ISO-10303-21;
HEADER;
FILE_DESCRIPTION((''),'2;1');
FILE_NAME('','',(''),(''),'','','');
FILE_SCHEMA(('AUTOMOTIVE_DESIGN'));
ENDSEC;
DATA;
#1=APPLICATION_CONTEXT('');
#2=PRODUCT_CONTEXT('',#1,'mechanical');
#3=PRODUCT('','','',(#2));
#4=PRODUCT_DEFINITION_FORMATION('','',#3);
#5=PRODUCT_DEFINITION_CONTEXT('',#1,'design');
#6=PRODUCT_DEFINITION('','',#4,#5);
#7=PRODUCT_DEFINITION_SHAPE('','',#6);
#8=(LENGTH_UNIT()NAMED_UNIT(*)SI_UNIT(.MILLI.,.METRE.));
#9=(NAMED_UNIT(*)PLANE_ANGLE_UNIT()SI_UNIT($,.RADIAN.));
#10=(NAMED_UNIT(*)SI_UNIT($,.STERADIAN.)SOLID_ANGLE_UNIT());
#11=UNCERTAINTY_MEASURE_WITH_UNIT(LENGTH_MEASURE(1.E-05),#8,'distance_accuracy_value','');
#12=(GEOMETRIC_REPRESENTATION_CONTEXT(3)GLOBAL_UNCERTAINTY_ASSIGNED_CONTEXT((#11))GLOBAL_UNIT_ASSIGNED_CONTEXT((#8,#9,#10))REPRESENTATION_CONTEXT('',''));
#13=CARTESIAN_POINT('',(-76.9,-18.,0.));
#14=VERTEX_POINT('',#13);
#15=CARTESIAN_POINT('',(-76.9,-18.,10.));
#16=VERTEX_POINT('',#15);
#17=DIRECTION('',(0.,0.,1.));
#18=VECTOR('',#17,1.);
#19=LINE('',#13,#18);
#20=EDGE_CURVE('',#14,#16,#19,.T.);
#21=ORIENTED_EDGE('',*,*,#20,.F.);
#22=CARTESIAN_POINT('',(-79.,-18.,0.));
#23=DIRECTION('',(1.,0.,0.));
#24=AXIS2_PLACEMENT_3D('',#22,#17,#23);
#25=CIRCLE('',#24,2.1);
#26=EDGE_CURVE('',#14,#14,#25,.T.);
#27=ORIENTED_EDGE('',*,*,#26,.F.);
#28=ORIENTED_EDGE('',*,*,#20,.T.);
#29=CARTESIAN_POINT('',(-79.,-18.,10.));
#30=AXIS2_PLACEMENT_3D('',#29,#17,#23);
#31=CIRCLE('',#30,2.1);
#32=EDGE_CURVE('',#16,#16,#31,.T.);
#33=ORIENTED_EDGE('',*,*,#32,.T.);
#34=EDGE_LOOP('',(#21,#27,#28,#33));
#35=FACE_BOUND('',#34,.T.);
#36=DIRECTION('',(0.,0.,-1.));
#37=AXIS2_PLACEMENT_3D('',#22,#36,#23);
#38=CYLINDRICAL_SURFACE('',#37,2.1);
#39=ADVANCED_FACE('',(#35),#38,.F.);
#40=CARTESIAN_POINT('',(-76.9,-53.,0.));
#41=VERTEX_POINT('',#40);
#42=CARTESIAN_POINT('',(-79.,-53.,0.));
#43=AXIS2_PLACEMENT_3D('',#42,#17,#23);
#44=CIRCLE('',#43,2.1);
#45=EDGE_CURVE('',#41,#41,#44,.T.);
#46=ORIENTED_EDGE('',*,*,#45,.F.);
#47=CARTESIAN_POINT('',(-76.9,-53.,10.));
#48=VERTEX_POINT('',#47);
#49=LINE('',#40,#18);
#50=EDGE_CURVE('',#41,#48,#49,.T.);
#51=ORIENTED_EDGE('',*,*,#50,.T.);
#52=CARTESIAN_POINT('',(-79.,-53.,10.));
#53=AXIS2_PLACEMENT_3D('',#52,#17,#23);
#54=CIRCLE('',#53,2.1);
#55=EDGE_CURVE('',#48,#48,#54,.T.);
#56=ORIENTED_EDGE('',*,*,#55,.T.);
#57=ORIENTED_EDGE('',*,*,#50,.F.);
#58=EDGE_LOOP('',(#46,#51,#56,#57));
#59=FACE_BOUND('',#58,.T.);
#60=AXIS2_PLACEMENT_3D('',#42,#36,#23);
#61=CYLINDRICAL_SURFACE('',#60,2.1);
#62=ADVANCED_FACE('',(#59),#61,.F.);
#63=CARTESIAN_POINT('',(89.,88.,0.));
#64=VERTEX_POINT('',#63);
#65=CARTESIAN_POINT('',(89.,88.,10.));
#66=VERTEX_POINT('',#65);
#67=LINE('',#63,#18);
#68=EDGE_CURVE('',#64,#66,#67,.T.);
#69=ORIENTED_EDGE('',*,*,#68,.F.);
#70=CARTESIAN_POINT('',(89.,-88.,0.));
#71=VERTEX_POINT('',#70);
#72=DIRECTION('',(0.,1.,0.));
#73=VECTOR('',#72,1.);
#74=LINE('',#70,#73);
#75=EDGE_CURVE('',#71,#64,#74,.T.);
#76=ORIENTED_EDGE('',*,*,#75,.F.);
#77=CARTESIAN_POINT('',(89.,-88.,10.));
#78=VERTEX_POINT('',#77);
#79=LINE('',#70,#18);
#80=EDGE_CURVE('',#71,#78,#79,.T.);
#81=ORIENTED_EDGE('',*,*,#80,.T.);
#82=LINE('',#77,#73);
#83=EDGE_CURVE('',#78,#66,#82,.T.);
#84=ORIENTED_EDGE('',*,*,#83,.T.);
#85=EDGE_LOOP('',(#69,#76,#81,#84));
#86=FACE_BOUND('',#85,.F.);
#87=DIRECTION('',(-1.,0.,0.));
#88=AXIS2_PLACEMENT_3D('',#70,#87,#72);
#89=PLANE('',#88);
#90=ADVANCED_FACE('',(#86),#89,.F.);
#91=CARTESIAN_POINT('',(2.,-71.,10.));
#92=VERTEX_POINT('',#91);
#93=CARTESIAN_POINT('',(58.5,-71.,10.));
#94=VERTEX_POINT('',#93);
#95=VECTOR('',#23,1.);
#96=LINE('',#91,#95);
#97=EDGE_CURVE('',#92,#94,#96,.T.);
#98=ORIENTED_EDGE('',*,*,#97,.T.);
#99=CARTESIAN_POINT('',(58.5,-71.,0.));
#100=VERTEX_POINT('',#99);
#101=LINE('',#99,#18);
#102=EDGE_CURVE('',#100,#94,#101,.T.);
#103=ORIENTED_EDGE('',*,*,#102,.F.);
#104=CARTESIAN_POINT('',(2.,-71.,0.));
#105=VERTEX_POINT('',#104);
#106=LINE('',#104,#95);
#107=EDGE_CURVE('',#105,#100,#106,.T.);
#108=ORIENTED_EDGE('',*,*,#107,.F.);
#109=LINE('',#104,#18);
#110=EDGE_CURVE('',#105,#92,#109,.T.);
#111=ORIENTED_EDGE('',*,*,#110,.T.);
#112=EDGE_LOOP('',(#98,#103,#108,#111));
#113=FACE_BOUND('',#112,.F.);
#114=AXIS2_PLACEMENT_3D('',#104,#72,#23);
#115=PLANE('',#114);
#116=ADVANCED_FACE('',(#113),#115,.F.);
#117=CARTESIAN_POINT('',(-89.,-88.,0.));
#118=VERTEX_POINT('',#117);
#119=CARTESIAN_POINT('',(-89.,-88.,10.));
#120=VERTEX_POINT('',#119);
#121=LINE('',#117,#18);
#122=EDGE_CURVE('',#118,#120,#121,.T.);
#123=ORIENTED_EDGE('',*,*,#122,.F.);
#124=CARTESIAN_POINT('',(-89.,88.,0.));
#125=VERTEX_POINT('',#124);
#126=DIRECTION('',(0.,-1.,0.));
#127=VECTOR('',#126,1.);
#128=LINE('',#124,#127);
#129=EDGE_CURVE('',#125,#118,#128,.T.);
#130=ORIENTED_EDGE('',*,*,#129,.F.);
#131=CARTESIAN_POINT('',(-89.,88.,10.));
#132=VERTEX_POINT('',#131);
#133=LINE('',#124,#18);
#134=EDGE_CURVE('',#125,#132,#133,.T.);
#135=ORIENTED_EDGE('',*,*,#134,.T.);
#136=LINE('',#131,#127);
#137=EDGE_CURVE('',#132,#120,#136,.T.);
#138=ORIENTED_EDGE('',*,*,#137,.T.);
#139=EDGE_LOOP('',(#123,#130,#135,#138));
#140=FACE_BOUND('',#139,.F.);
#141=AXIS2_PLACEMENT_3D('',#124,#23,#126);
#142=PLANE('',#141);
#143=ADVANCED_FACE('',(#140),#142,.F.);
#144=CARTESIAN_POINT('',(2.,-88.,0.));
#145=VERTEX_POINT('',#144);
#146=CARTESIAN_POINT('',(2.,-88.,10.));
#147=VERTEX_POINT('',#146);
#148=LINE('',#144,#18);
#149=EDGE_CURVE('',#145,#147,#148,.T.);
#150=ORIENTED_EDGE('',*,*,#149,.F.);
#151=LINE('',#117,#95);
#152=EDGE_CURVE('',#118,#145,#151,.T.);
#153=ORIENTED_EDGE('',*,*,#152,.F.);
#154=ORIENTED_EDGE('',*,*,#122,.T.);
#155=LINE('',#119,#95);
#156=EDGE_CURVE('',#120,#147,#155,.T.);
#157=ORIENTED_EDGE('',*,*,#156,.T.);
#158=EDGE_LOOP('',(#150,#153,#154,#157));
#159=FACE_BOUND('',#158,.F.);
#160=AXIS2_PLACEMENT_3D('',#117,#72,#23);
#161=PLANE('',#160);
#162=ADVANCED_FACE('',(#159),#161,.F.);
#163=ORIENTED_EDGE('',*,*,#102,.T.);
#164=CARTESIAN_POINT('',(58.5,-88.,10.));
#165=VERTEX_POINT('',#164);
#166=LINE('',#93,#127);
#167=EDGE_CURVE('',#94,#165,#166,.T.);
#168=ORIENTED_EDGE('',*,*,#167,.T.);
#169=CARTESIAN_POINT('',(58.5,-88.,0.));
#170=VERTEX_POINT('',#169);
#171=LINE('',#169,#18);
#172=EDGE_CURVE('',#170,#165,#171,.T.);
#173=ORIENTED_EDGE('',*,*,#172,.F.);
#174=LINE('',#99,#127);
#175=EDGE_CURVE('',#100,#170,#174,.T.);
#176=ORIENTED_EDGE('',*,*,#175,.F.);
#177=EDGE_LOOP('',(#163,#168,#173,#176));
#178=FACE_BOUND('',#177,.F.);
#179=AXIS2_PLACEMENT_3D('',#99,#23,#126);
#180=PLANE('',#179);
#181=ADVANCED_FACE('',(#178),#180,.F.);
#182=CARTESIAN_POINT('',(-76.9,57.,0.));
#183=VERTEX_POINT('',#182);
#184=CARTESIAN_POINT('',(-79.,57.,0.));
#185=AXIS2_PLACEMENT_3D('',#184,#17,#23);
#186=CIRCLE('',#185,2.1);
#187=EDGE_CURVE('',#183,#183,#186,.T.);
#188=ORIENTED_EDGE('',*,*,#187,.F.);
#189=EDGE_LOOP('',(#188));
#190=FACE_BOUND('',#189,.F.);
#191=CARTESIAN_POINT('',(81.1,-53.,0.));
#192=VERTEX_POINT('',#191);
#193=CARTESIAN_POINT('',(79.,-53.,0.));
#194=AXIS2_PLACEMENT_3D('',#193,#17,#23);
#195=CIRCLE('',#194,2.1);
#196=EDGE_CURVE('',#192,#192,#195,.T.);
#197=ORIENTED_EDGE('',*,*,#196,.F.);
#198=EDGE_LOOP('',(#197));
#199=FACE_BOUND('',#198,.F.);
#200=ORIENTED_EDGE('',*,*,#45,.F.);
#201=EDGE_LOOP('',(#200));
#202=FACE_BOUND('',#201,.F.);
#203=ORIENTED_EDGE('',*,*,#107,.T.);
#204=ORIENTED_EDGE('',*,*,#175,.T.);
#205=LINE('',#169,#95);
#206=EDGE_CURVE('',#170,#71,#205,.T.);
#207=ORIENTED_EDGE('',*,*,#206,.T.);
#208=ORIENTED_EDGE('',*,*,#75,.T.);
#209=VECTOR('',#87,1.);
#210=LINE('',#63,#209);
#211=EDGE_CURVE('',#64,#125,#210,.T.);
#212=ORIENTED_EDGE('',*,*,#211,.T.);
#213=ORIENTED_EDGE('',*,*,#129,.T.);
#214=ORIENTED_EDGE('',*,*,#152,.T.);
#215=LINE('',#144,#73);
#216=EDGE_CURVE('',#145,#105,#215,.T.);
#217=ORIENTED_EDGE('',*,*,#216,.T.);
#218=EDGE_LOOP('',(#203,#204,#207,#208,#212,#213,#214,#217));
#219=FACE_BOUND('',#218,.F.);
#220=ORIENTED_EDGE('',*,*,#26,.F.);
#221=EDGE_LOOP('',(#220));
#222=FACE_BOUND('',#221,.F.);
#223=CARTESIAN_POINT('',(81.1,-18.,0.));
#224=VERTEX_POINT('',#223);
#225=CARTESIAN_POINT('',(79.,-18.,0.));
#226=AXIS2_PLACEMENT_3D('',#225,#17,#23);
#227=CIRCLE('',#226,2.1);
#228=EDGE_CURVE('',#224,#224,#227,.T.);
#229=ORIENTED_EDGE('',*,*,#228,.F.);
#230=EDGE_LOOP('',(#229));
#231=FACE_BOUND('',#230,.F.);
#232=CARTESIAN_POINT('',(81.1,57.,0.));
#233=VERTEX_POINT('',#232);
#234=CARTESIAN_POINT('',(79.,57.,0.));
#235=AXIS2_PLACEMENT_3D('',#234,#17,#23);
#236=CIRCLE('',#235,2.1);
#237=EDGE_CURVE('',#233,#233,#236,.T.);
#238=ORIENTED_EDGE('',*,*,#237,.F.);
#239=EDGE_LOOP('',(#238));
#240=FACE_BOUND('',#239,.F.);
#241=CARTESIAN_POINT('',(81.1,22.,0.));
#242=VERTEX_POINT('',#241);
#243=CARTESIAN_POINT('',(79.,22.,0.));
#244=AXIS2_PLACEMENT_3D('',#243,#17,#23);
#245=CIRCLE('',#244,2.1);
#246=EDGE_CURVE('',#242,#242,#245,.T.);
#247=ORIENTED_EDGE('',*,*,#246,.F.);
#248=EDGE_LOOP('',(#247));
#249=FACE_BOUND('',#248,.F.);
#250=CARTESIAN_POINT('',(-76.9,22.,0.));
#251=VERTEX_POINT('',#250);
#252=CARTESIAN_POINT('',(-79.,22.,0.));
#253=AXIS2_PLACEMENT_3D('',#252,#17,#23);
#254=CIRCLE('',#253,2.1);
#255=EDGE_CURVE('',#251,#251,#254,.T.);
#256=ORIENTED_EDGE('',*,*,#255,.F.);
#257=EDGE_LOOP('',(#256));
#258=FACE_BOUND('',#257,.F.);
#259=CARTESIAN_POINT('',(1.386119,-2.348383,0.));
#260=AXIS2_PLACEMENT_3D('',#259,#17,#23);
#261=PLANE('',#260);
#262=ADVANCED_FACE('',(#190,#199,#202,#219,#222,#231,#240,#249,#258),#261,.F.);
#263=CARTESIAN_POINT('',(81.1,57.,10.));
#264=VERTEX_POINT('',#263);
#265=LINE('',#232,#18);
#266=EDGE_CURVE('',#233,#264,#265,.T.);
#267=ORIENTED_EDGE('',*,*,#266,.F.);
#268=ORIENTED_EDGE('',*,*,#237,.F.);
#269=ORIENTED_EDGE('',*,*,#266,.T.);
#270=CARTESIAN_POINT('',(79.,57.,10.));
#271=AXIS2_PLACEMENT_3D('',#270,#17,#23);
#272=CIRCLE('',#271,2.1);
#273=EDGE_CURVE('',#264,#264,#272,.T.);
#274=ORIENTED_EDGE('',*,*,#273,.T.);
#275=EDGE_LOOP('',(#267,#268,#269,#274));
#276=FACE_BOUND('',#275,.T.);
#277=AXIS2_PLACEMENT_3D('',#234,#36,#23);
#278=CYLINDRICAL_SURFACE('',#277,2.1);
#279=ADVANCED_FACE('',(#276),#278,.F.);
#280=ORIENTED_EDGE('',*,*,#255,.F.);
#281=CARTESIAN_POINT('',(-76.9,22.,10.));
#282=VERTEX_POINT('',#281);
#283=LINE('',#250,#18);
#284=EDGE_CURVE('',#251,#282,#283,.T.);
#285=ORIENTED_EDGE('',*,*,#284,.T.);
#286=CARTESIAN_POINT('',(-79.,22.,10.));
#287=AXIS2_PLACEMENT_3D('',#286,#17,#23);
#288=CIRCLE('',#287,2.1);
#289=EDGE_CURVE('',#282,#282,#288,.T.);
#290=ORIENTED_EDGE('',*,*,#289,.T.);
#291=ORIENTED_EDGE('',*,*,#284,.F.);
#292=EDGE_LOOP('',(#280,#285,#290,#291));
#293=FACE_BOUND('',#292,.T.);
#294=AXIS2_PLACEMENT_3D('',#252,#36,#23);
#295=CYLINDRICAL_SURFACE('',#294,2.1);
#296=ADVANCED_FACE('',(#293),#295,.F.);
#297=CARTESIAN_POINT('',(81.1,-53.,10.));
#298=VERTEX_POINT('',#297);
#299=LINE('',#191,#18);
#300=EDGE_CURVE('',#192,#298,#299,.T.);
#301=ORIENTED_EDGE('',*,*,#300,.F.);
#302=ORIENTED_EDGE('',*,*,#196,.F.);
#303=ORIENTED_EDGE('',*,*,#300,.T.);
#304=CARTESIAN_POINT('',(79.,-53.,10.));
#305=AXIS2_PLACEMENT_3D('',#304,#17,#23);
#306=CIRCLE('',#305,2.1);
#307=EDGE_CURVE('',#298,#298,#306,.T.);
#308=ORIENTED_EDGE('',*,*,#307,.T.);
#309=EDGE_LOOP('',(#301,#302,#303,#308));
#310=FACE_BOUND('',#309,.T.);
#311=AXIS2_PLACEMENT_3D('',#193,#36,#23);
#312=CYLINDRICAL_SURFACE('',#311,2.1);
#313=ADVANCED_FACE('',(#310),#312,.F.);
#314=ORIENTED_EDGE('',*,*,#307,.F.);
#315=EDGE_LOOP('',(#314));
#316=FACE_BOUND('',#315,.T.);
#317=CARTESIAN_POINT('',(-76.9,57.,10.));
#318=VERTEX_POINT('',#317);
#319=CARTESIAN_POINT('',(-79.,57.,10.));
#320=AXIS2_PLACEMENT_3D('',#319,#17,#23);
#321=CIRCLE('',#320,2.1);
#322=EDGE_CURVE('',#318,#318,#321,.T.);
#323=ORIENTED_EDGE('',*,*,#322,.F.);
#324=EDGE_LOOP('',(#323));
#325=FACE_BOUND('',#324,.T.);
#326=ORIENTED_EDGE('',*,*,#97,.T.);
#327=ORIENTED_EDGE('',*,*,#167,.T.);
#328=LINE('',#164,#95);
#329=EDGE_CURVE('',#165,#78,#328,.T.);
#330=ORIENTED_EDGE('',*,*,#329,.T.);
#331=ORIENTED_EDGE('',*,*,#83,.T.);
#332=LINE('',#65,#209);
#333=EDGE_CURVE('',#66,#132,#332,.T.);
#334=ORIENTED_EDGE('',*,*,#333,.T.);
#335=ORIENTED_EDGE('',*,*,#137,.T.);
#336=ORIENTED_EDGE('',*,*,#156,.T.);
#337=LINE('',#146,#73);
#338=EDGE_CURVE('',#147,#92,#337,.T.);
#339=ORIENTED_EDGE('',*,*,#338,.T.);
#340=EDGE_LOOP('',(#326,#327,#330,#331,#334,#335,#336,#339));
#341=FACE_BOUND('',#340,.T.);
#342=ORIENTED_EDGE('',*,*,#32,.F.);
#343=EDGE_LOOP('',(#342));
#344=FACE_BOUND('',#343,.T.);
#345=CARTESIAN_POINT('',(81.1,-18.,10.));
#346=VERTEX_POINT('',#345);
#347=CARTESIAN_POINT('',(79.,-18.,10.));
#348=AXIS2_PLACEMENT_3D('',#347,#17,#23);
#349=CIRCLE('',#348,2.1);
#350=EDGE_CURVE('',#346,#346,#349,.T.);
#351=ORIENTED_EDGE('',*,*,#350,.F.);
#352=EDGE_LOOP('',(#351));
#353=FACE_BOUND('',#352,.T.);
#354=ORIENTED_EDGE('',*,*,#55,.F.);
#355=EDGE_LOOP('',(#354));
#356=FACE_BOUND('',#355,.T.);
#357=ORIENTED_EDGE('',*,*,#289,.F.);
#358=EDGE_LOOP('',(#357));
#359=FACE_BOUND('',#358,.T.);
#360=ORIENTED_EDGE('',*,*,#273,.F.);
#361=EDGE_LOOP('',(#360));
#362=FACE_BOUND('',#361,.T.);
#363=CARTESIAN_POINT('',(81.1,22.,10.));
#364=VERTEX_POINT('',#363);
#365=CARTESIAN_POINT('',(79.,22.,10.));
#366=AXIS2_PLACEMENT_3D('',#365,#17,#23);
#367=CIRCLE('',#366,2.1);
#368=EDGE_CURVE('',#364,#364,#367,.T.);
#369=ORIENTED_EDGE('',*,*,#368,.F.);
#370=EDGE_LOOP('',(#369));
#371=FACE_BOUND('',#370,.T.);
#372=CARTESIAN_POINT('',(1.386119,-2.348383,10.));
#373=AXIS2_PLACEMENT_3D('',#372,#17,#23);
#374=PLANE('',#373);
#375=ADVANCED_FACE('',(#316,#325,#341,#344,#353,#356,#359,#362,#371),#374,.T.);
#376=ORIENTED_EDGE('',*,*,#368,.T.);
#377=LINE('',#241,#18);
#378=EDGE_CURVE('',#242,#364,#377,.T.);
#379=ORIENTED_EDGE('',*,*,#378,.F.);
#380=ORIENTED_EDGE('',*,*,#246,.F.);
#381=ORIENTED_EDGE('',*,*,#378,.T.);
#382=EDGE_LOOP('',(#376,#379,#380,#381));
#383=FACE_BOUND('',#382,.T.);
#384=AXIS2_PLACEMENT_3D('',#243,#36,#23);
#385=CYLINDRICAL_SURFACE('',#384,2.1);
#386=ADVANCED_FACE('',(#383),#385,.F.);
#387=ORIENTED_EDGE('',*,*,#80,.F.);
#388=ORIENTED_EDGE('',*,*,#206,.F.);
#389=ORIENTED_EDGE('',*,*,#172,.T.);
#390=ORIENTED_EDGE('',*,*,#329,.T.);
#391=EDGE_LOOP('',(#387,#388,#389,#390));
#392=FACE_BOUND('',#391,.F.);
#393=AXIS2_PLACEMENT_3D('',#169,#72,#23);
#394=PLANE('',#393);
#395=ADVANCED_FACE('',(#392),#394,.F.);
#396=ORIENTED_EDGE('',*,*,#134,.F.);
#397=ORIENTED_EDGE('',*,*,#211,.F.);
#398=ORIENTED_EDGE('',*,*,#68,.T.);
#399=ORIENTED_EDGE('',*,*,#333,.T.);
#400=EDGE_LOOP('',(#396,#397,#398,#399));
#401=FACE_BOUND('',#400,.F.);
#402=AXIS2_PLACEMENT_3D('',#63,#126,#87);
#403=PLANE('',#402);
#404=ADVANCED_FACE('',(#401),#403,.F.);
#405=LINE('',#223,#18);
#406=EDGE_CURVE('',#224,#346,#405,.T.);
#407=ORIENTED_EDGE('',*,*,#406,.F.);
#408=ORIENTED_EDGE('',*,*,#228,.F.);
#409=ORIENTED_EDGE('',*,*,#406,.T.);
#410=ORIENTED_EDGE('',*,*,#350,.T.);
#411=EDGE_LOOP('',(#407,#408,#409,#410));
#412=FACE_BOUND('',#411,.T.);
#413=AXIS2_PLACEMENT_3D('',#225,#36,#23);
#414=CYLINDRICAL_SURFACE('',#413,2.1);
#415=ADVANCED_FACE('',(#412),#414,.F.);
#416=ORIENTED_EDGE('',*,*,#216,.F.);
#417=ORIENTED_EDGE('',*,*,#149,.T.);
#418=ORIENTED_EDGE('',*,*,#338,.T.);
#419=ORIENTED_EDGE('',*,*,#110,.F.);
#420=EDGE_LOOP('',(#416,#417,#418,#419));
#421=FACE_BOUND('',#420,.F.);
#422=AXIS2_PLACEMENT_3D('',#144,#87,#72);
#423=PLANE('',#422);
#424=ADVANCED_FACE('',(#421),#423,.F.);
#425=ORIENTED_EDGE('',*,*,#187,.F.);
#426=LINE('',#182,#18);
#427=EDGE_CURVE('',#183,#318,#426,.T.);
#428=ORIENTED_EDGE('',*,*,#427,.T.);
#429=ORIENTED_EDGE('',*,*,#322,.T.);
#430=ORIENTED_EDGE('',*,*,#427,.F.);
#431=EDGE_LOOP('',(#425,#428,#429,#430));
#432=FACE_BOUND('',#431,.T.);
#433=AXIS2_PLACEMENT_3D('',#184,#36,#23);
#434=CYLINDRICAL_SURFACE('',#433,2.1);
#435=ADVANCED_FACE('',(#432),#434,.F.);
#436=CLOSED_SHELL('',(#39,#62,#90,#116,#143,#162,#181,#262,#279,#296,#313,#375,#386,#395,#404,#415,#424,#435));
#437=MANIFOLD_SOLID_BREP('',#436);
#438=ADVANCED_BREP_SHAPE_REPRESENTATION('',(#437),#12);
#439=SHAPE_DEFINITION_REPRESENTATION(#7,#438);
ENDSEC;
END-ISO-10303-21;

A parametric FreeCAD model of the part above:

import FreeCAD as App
import Part
import Sketcher


def add_polygon(sketch, points):
    """Adds a closed chain of lines whose ends are joined by coincident constraints."""
    first, n = sketch.GeometryCount, len(points)
    for a, b in zip(points, points[1:] + points[:1]):
        sketch.addGeometry(Part.LineSegment(App.Vector(*a, 0), App.Vector(*b, 0)), False)
    for i in range(n):
        sketch.addConstraint(Sketcher.Constraint("Coincident", first + i, 2, first + (i + 1) % n, 1))

doc = App.newDocument("Part")
body = doc.addObject("PartDesign::Body", "Body")

# Sketch on XY plane
sketch1 = doc.addObject("Sketcher::SketchObject", "Sketch")
body.addObject(sketch1)
sketch1.AttachmentSupport = (doc.XY_Plane, [""])
sketch1.MapMode = "FlatFace"
add_polygon(sketch1, [(89, -88), (89, 88), (-89, 88), (-89, -88), (2, -88), (2, -71), (58.5, -71), (58.5, -88)])  # lines 0-7
sketch1.addGeometry(Part.Circle(App.Vector(-79, -53, 0), App.Vector(0, 0, 1), 2.1), False)  # 8
sketch1.addGeometry(Part.Circle(App.Vector(-79, -18, 0), App.Vector(0, 0, 1), 2.1), False)  # 9
sketch1.addGeometry(Part.Circle(App.Vector(79, -53, 0), App.Vector(0, 0, 1), 2.1), False)  # 10
sketch1.addGeometry(Part.Circle(App.Vector(79, -18, 0), App.Vector(0, 0, 1), 2.1), False)  # 11
sketch1.addGeometry(Part.Circle(App.Vector(-79, 22, 0), App.Vector(0, 0, 1), 2.1), False)  # 12
sketch1.addGeometry(Part.Circle(App.Vector(-79, 57, 0), App.Vector(0, 0, 1), 2.1), False)  # 13
sketch1.addGeometry(Part.Circle(App.Vector(79, 22, 0), App.Vector(0, 0, 1), 2.1), False)  # 14
sketch1.addGeometry(Part.Circle(App.Vector(79, 57, 0), App.Vector(0, 0, 1), 2.1), False)  # 15
sketch1.addConstraint(Sketcher.Constraint("Vertical", 0))
sketch1.addConstraint(Sketcher.Constraint("Horizontal", 1))
sketch1.addConstraint(Sketcher.Constraint("Vertical", 2))
sketch1.addConstraint(Sketcher.Constraint("Horizontal", 3))
sketch1.addConstraint(Sketcher.Constraint("Vertical", 4))
sketch1.addConstraint(Sketcher.Constraint("Horizontal", 5))
sketch1.addConstraint(Sketcher.Constraint("Vertical", 6))
sketch1.addConstraint(Sketcher.Constraint("Horizontal", 7))
sketch1.addConstraint(Sketcher.Constraint("Equal", 8, 9))
sketch1.addConstraint(Sketcher.Constraint("Equal", 9, 10))
sketch1.addConstraint(Sketcher.Constraint("Equal", 10, 11))
sketch1.addConstraint(Sketcher.Constraint("Equal", 11, 12))
sketch1.addConstraint(Sketcher.Constraint("Equal", 12, 13))
sketch1.addConstraint(Sketcher.Constraint("Equal", 13, 14))
sketch1.addConstraint(Sketcher.Constraint("Equal", 14, 15))
sketch1.addConstraint(Sketcher.Constraint("Symmetric", 0, 2, 2, 2, -1, 1))
sketch1.addConstraint(Sketcher.Constraint("Symmetric", 8, 3, 10, 3, -2))
sketch1.addConstraint(Sketcher.Constraint("Symmetric", 9, 3, 11, 3, -2))
sketch1.addConstraint(Sketcher.Constraint("Symmetric", 12, 3, 14, 3, -2))
sketch1.addConstraint(Sketcher.Constraint("Symmetric", 13, 3, 15, 3, -2))
sketch1.addConstraint(Sketcher.Constraint("Horizontal", 3, 2, 6, 2))
sketch1.addConstraint(Sketcher.Constraint("Vertical", 8, 3, 9, 3))
sketch1.addConstraint(Sketcher.Constraint("Vertical", 9, 3, 12, 3))
sketch1.addConstraint(Sketcher.Constraint("Vertical", 12, 3, 13, 3))
sketch1.addConstraint(Sketcher.Constraint("Diameter", 8, 4.2))
sketch1.addConstraint(Sketcher.Constraint("DistanceX", 1, 2, 1, 1, 178.0))
sketch1.addConstraint(Sketcher.Constraint("DistanceX", 3, 1, 3, 2, 91.0))
sketch1.addConstraint(Sketcher.Constraint("DistanceY", 0, 1, 0, 2, 176.0))
sketch1.addConstraint(Sketcher.Constraint("DistanceY", 4, 1, 4, 2, 17.0))
sketch1.addConstraint(Sketcher.Constraint("DistanceX", 5, 1, 5, 2, 56.5))
sketch1.addConstraint(Sketcher.Constraint("DistanceX", 8, 3, -1, 1, 79.0))
sketch1.addConstraint(Sketcher.Constraint("DistanceY", 8, 3, -1, 1, 53.0))
sketch1.addConstraint(Sketcher.Constraint("DistanceY", 9, 3, -1, 1, 18.0))
sketch1.addConstraint(Sketcher.Constraint("DistanceY", -1, 1, 12, 3, 22.0))
sketch1.addConstraint(Sketcher.Constraint("DistanceY", -1, 1, 13, 3, 57.0))
pad1 = doc.addObject("PartDesign::Pad", "Pad")
body.addObject(pad1)
pad1.Profile = sketch1
pad1.Length = 10

doc.recompute()
